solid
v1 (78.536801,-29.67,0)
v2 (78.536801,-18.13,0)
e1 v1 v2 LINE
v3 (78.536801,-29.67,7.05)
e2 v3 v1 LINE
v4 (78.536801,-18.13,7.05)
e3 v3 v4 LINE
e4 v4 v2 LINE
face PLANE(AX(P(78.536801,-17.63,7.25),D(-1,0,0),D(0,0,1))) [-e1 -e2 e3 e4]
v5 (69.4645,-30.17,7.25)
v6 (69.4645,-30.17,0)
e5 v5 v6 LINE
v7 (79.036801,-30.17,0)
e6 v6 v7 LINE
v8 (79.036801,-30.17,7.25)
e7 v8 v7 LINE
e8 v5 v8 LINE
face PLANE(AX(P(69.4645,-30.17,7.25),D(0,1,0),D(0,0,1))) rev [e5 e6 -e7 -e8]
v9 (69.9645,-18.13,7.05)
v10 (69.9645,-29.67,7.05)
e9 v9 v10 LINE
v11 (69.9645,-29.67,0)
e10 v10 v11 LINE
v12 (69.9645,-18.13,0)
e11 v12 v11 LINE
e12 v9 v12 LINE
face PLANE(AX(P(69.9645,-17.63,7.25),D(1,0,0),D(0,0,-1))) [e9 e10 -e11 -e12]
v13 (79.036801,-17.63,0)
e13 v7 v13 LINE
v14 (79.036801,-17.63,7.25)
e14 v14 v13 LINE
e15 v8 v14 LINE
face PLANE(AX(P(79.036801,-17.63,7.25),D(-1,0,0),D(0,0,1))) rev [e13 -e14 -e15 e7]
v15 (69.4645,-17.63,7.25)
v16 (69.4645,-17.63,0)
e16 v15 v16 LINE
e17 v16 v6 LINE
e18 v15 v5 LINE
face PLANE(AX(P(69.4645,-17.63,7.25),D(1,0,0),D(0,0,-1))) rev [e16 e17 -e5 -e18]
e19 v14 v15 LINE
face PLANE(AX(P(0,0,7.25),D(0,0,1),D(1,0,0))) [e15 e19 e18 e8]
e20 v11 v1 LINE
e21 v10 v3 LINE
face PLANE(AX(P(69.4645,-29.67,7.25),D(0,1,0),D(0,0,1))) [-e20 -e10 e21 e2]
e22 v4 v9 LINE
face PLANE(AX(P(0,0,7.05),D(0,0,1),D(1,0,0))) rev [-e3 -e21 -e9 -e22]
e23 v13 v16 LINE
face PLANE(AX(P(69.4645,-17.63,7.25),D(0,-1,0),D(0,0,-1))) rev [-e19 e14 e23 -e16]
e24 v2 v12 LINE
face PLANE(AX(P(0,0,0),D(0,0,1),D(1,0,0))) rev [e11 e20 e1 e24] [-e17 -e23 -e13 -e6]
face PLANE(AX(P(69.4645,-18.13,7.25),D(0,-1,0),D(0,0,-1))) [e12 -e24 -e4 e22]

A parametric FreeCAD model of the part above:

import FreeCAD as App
import Part
import Sketcher


def faces_at(feature, points):
    """Names of the faces that lie closest to the given points."""
    faces = feature.Shape.Faces
    near = lambda p: min(range(len(faces)), key=lambda i: faces[i].distToShape(Part.Vertex(*p))[0])
    return sorted({f"Face{near(p) + 1}" for p in points})


def add_polygon(sketch, points):
    """Adds a closed chain of lines whose ends are joined by coincident constraints."""
    first, n = sketch.GeometryCount, len(points)
    for a, b in zip(points, points[1:] + points[:1]):
        sketch.addGeometry(Part.LineSegment(App.Vector(*a, 0), App.Vector(*b, 0)), False)
    for i in range(n):
        sketch.addConstraint(Sketcher.Constraint("Coincident", first + i, 2, first + (i + 1) % n, 1))

doc = App.newDocument("Part")
body = doc.addObject("PartDesign::Body", "Body")

# Sketch on XY plane
sketch1 = body.newObject("Sketcher::SketchObject", "Sketch")
sketch1.AttachmentSupport = (doc.getObject("XY_Plane"), [""])
sketch1.MapMode = "FlatFace"
add_polygon(sketch1, [(69, -18), (69, -30), (79, -30), (79, -18)])  # lines 0-3
sketch1.addConstraint([
    Sketcher.Constraint("Vertical", 0),
    Sketcher.Constraint("Horizontal", 1),
    Sketcher.Constraint("Vertical", 2),
    Sketcher.Constraint("Horizontal", 3),
    Sketcher.Constraint("DistanceY", 0, 2, 0, 1, 12.54),
    Sketcher.Constraint("DistanceY", 0, 2, -1, 1, 30.17),
    Sketcher.Constraint("DistanceX", 1, 1, 1, 2, 9.572301),
    Sketcher.Constraint("DistanceX", -1, 1, 0, 2, 69.4645),
])
pad1 = body.newObject("PartDesign::Pad", "Pad")
pad1.Profile = sketch1
pad1.Length = 7.25
doc.recompute()

thickness = body.newObject("PartDesign::Thickness", "Thickness")
thickness.Base = (pad1, faces_at(pad1, [(74.251, -23.9, 0)]))
thickness.Value = 0.5
thickness.Reversed = True
thickness.Join = "Intersection"

# Sketch on XY plane
sketch2 = body.newObject("Sketcher::SketchObject", "Sketch001")
sketch2.AttachmentSupport = (doc.getObject("XY_Plane"), [""])
sketch2.MapMode = "FlatFace"
sketch2.AttachmentOffset = App.Placement(App.Vector(0, 0, 6.75), App.Rotation())
add_polygon(sketch2, [(70, -18), (70, -30), (79, -30), (79, -18)])  # lines 0-3
sketch2.addConstraint([
    Sketcher.Constraint("Vertical", 0),
    Sketcher.Constraint("Horizontal", 1),
    Sketcher.Constraint("Vertical", 2),
    Sketcher.Constraint("Horizontal", 3),
    Sketcher.Constraint("DistanceY", 0, 2, 0, 1, 11.54),
    Sketcher.Constraint("DistanceY", 0, 2, -1, 1, 29.67),
    Sketcher.Constraint("DistanceX", 1, 1, 1, 2, 8.572301),
    Sketcher.Constraint("DistanceX", -1, 1, 0, 2, 69.9645),
])
pocket1 = body.newObject("PartDesign::Pocket", "Pocket")
pocket1.Profile = sketch2
pocket1.Length = 0.3
pocket1.Reversed = True

doc.recompute()
